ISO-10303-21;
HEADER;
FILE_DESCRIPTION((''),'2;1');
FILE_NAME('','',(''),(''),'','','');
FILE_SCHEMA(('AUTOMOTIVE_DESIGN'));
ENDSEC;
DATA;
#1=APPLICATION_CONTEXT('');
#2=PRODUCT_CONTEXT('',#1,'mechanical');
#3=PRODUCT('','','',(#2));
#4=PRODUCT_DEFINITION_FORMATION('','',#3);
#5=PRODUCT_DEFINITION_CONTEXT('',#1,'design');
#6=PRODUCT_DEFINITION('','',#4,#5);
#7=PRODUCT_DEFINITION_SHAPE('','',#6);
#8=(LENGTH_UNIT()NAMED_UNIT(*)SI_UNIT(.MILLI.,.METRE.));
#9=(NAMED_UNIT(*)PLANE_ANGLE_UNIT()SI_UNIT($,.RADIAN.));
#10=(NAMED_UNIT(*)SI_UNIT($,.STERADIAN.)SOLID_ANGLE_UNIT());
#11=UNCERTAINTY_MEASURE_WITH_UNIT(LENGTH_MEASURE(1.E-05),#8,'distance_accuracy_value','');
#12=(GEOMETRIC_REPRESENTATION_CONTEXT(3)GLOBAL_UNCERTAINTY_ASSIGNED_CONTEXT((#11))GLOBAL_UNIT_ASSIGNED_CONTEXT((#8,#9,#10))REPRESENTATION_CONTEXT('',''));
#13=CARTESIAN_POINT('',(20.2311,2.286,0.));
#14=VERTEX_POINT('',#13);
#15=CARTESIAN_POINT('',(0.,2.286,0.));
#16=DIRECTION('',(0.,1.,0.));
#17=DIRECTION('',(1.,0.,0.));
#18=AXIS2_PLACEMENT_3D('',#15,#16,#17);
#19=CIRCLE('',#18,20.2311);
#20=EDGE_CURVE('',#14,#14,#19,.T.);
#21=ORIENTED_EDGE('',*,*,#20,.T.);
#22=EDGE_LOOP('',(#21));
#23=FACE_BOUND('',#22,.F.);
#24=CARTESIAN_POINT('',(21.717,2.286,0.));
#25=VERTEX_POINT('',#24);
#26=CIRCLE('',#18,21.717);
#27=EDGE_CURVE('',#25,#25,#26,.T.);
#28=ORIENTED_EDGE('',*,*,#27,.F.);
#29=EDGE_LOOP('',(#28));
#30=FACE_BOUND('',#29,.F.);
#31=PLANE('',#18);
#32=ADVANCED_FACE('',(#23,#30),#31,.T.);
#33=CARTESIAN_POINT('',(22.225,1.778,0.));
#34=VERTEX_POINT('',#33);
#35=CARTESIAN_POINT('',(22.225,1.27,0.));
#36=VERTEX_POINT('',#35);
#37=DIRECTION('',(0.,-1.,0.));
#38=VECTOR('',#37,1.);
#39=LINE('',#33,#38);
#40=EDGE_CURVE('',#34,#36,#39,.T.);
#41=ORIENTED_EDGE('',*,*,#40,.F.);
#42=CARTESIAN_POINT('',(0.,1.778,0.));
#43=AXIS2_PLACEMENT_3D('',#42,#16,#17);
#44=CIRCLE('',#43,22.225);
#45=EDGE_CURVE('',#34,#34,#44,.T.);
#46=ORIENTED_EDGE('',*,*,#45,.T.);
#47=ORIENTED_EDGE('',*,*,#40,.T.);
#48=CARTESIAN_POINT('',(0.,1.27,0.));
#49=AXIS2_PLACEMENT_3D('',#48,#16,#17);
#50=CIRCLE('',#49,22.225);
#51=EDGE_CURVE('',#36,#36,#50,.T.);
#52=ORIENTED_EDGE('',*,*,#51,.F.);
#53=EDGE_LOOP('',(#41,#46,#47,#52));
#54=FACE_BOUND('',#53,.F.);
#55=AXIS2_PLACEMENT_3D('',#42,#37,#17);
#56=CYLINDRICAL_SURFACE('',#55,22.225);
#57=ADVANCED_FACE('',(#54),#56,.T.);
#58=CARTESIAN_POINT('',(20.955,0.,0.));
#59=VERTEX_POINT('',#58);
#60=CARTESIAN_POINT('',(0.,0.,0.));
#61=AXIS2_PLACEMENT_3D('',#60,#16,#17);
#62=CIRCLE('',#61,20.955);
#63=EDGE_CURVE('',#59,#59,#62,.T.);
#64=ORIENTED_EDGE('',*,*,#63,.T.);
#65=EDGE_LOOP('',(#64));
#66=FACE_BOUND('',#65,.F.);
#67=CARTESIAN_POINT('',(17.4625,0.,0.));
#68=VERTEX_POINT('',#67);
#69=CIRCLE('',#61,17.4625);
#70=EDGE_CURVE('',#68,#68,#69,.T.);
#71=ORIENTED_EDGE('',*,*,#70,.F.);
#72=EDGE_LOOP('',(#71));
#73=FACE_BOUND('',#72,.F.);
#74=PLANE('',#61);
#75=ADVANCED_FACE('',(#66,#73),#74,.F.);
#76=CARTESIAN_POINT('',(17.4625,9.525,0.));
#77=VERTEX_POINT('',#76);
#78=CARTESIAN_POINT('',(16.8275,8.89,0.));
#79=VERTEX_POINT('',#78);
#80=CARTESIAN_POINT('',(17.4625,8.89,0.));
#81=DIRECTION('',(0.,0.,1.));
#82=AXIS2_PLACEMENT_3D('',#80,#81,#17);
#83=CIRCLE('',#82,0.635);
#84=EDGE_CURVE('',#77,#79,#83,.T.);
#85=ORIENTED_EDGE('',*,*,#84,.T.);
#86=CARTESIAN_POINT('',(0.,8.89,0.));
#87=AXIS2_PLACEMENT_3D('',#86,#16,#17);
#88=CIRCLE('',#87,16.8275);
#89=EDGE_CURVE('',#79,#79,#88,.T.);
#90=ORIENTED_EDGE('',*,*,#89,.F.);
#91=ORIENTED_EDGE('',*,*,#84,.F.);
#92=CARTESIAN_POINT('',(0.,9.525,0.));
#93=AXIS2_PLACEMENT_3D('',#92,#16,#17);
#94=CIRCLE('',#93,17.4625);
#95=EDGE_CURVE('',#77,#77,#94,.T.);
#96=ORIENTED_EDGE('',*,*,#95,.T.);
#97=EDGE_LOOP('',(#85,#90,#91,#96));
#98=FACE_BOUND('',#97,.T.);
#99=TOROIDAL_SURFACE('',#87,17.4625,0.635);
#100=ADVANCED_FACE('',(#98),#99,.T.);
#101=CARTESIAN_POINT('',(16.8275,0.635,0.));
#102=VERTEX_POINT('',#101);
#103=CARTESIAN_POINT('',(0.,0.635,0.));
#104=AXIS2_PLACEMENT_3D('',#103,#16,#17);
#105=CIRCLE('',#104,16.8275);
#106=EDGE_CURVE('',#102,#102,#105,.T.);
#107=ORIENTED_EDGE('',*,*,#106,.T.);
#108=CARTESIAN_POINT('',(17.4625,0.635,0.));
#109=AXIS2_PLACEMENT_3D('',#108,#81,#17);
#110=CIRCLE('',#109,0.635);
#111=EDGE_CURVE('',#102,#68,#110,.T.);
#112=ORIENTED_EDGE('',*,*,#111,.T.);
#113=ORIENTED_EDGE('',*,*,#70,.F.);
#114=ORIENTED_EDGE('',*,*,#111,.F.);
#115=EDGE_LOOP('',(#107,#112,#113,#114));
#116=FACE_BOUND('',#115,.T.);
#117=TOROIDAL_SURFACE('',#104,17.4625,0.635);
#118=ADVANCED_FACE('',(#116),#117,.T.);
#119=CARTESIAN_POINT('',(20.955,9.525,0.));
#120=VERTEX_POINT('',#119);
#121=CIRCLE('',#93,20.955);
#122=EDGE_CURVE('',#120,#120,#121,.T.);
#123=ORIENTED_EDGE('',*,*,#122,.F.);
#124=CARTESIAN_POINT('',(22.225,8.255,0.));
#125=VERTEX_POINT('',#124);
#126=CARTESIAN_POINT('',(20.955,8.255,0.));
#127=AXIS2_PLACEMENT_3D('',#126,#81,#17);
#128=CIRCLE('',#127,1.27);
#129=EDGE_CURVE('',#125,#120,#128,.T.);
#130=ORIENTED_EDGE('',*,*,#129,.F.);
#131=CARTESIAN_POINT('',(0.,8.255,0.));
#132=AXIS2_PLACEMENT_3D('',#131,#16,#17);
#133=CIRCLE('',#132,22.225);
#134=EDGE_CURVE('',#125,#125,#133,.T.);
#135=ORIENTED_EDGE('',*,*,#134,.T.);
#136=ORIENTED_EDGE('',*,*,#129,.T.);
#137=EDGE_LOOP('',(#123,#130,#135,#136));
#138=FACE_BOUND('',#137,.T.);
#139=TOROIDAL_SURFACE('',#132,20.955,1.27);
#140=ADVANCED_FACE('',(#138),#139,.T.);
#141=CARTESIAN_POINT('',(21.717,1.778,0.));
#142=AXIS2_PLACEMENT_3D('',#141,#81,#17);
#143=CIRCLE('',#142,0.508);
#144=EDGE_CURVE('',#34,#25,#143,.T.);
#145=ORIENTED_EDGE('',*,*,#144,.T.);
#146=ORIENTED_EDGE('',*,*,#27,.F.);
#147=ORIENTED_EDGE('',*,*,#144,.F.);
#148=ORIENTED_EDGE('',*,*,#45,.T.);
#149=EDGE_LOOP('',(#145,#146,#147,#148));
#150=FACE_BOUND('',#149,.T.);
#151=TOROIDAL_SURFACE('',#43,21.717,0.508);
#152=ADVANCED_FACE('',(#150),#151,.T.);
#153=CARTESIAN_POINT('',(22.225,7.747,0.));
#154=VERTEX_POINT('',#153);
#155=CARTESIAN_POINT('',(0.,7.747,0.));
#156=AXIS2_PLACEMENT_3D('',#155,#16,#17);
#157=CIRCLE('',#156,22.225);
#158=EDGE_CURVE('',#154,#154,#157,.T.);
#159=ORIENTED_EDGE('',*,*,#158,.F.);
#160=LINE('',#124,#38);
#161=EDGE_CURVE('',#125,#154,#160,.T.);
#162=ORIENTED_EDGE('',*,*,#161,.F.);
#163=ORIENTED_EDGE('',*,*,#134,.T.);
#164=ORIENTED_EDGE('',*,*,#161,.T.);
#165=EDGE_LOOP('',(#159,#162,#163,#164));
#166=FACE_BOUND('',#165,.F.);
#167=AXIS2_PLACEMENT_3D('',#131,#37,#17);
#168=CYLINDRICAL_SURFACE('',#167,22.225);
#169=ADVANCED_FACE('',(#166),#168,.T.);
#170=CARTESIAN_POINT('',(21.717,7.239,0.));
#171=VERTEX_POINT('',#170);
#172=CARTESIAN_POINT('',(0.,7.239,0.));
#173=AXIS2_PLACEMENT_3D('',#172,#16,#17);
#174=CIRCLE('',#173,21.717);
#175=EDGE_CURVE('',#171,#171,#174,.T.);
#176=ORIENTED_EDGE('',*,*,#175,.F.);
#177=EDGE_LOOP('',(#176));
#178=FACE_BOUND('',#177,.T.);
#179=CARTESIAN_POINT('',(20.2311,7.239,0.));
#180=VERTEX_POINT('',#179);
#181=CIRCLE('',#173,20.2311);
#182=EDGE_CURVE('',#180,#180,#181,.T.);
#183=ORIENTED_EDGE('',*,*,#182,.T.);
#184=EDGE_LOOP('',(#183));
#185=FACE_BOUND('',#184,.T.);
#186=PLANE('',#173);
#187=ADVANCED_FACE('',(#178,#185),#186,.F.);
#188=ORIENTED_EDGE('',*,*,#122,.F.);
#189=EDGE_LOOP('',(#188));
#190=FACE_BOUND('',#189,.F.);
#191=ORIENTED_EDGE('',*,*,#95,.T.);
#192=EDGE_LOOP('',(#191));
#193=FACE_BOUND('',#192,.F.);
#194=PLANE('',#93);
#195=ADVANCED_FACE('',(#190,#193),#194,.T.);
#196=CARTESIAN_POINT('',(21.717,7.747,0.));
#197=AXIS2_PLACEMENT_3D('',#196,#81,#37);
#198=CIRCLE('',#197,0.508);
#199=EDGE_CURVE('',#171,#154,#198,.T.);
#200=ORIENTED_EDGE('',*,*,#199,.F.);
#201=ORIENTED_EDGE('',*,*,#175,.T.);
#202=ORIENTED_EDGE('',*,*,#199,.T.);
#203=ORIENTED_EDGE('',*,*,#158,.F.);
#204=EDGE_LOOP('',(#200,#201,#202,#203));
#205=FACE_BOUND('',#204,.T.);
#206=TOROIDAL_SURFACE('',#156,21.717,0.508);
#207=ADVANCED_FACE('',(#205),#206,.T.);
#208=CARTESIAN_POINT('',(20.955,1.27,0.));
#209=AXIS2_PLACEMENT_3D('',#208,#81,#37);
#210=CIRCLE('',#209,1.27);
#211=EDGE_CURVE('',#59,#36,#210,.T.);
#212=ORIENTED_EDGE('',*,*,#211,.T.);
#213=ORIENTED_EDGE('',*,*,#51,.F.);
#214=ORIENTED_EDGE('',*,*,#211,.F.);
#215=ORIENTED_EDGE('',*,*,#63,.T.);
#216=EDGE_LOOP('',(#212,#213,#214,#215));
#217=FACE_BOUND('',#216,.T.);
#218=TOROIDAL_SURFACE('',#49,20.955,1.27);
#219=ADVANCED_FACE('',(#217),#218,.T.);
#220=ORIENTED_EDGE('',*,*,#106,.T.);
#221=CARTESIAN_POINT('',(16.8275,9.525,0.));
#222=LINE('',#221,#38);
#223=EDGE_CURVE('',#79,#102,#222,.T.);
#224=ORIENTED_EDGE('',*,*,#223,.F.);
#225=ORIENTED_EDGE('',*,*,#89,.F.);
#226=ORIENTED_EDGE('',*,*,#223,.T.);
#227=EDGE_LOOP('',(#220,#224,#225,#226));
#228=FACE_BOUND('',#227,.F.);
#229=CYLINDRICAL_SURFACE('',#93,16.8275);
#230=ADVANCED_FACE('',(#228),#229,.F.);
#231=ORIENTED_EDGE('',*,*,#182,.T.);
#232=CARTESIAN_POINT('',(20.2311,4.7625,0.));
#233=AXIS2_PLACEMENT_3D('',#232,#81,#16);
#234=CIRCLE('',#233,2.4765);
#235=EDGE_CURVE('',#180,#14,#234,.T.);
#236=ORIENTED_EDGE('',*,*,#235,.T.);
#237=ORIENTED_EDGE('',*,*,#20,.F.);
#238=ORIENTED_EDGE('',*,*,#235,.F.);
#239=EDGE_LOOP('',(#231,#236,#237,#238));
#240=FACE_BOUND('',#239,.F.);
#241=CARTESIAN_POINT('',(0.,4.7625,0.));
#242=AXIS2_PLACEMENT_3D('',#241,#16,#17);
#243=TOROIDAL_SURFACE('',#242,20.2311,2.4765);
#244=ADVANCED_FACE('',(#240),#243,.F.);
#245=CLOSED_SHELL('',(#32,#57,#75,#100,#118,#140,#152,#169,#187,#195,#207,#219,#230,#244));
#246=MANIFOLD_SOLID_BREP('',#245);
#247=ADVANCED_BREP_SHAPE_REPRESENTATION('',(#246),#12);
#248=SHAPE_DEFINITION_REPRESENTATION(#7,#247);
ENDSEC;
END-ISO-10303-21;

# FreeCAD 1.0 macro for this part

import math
import FreeCAD as App
import Part
import Sketcher

V = App.Vector
Q = App.Units.Quantity


def edges_at(feature, points):
    """Names of the edges that pass closest to the given points."""
    edges = feature.Shape.Edges
    near = lambda p: min(range(len(edges)), key=lambda i: edges[i].distToShape(Part.Vertex(*p))[0])
    return sorted({f"Edge{near(p) + 1}" for p in points})

doc = App.newDocument("Part")
body = doc.addObject("PartDesign::Body", "Body")

# Sketch on XY plane
sketch1 = body.newObject("Sketcher::SketchObject", "Sketch")
sketch1.AttachmentSupport = (doc.getObject("XY_Plane"), [""])
sketch1.MapMode = "FlatFace"
sketch1.addGeometry(Part.LineSegment(V(0, 9.525, 0), V(0, 0, 0)), False)
sketch1.addGeometry(Part.LineSegment(V(0, 0, 0), V(20.955, 0, 0)), False)
sketch1.addGeometry(Part.ArcOfCircle(Part.Circle(V(20.955, 1.27, 0), V(0, 0, 1), 1.27), math.radians(-90), math.radians(0)), False)
sketch1.addGeometry(Part.LineSegment(V(22.225, 1.27, 0), V(22.225, 1.778, 0)), False)
sketch1.addGeometry(Part.ArcOfCircle(Part.Circle(V(21.717, 1.778, 0), V(0, 0, 1), 0.508), math.radians(0), math.radians(90)), False)
sketch1.addGeometry(Part.LineSegment(V(21.717, 2.286, 0), V(20.2311, 2.286, 0)), False)
sketch1.addGeometry(Part.ArcOfCircle(Part.Circle(V(20.2311, 4.7625, 0), V(0, 0, 1), 2.4765), math.radians(90), math.radians(270)), False)
sketch1.addGeometry(Part.LineSegment(V(20.2311, 7.239, 0), V(21.717, 7.239, 0)), False)
sketch1.addGeometry(Part.ArcOfCircle(Part.Circle(V(21.717, 7.747, 0), V(0, 0, 1), 0.508), math.radians(-90), math.radians(0)), False)
sketch1.addGeometry(Part.LineSegment(V(22.225, 7.747, 0), V(22.225, 8.255, 0)), False)
sketch1.addGeometry(Part.ArcOfCircle(Part.Circle(V(20.955, 8.255, 0), V(0, 0, 1), 1.27), math.radians(0), math.radians(90)), False)
sketch1.addGeometry(Part.LineSegment(V(20.955, 9.525, 0), V(0, 9.525, 0)), False)
sketch1.addConstraint(Sketcher.Constraint("Coincident", 0, 2, 1, 1))
sketch1.addConstraint(Sketcher.Constraint("Tangent", 1, 2, 2, 1))
sketch1.addConstraint(Sketcher.Constraint("Tangent", 2, 2, 3, 1))
sketch1.addConstraint(Sketcher.Constraint("Tangent", 3, 2, 4, 1))
sketch1.addConstraint(Sketcher.Constraint("Tangent", 4, 2, 5, 1))
sketch1.addConstraint(Sketcher.Constraint("Tangent", 5, 2, 6, 2))
sketch1.addConstraint(Sketcher.Constraint("Tangent", 6, 1, 7, 1))
sketch1.addConstraint(Sketcher.Constraint("Tangent", 7, 2, 8, 1))
sketch1.addConstraint(Sketcher.Constraint("Tangent", 8, 2, 9, 1))
sketch1.addConstraint(Sketcher.Constraint("Tangent", 9, 2, 10, 1))
sketch1.addConstraint(Sketcher.Constraint("Tangent", 10, 2, 11, 1))
sketch1.addConstraint(Sketcher.Constraint("Coincident", 11, 2, 0, 1))
sketch1.addConstraint(Sketcher.Constraint("Vertical", 0))
sketch1.addConstraint(Sketcher.Constraint("Horizontal", 1))
sketch1.addConstraint(Sketcher.Constraint("Vertical", 3))
sketch1.addConstraint(Sketcher.Constraint("Horizontal", 5))
sketch1.addConstraint(Sketcher.Constraint("Horizontal", 7))
sketch1.addConstraint(Sketcher.Constraint("Vertical", 9))
sketch1.addConstraint(Sketcher.Constraint("Horizontal", 11))
sketch1.addConstraint(Sketcher.Constraint("Coincident", 0, 2, -1, 1))
sketch1.addConstraint(Sketcher.Constraint("Equal", 4, 8))
sketch1.addConstraint(Sketcher.Constraint("Equal", 2, 10))
sketch1.addConstraint(Sketcher.Constraint("Vertical", 4, 3, 8, 3))
sketch1.addConstraint(Sketcher.Constraint("Equal", 3, 9))
sketch1.addConstraint(Sketcher.Constraint("Radius", 2, Q("0.05 in")))
sketch1.addConstraint(Sketcher.Constraint("Radius", 4, Q("0.02 in")))
sketch1.addConstraint(Sketcher.Constraint("DistanceY", 3, 1, 3, 2, Q("0.02 in")))
sketch1.addConstraint(Sketcher.Constraint("DistanceY", 0, 2, 0, 1, Q("0.375 in")))
sketch1.addConstraint(Sketcher.Constraint("DistanceX", -1, 1, 2, 2, Q("0.875 in")))
sketch1.addConstraint(Sketcher.Constraint("DistanceX", 6, 3, 2, 2, Q("0.0785 in")))
revolution = body.newObject("PartDesign::Revolution", "Revolution")
revolution.Profile = sketch1
revolution.ReferenceAxis = (sketch1, ["V_Axis"])
revolution.Angle = 360

# Sketch on XZ plane
sketch2 = body.newObject("Sketcher::SketchObject", "Sketch001")
sketch2.AttachmentSupport = (doc.getObject("XZ_Plane"), [""])
sketch2.MapMode = "FlatFace"
sketch2.AttachmentOffset = App.Placement(V(0, 0, -0.375 * 25.4), App.Rotation())
sketch2.addGeometry(Part.Circle(V(0, 0, 0), V(0, 0, 1), 16.8275), False)
sketch2.addConstraint(Sketcher.Constraint("Coincident", 0, 3, -1, 1))
sketch2.addConstraint(Sketcher.Constraint("Diameter", 0, Q("1.325 in")))
pocket1 = body.newObject("PartDesign::Pocket", "Pocket")
pocket1.Profile = sketch2
pocket1.Type = "ThroughAll"
pocket1.Reversed = True
doc.recompute()

fillet = body.newObject("PartDesign::Fillet", "Fillet")
fillet.Base = (pocket1, edges_at(pocket1, [(-16.828, 9.525, 0)]))
fillet.Radius = Q("0.025 in")
doc.recompute()

fillet2 = body.newObject("PartDesign::Fillet", "Fillet001")
fillet2.Base = (fillet, edges_at(fillet, [(-16.828, 0, 0)]))
fillet2.Radius = Q("0.025 in")

doc.recompute()
